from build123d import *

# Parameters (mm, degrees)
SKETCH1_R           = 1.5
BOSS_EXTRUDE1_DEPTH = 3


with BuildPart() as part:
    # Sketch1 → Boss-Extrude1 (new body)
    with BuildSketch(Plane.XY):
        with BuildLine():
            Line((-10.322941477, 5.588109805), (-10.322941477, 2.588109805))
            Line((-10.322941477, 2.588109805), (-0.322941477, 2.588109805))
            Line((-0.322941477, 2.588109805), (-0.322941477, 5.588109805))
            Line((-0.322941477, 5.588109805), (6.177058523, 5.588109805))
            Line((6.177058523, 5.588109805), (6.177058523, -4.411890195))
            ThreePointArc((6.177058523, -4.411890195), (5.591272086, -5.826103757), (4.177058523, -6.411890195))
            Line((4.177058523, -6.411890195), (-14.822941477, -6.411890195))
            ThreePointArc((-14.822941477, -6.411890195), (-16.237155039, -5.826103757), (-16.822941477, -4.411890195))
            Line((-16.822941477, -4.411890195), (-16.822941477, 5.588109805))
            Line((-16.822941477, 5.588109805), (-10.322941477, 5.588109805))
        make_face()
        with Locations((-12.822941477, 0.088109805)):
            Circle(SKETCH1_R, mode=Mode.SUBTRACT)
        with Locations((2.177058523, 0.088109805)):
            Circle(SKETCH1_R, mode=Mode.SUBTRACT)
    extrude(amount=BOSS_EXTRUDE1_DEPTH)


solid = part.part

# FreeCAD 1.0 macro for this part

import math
import FreeCAD as App
import Part
import Sketcher

V = App.Vector
Q = App.Units.Quantity

doc = App.newDocument("Part")
params = doc.addObject("Spreadsheet::Sheet", "Params")
for row, (alias, value) in enumerate([
    ("sketch1_diameter", "3 mm"),
    ("sketch1_radius", "2 mm"),
    ("sketch1_width", "19 mm"),
    ("sketch1_width2", "10 mm"),
    ("sketch1_height", "3 mm"),
    ("pad1_length", "3 mm"),
], start=1):
    params.set(f"A{row}", alias)
    params.set(f"B{row}", "=" + value)
    params.setAlias(f"B{row}", alias)

body = doc.addObject("PartDesign::Body", "Body")

# Sketch on XY plane
sketch1 = body.newObject("Sketcher::SketchObject", "Sketch")
sketch1.AttachmentSupport = (doc.getObject("XY_Plane"), [""])
sketch1.MapMode = "FlatFace"
sketch1.addGeometry([
    Part.LineSegment(V(-10.322941, 2.58811, 0), V(-10.322941, 5.58811, 0)),  # 0
    Part.LineSegment(V(-10.322941, 5.58811, 0), V(-16.822941, 5.58811, 0)),  # 1
    Part.LineSegment(V(-16.822941, 5.58811, 0), V(-16.822941, -4.41189, 0)),  # 2
    Part.ArcOfCircle(Part.Circle(V(-14.822941, -4.41189, 0), V(0, 0, 1), 2), math.radians(-180), math.radians(-90)),  # 3
    Part.LineSegment(V(-14.822941, -6.41189, 0), V(4.177059, -6.41189, 0)),  # 4
    Part.ArcOfCircle(Part.Circle(V(4.177059, -4.41189, 0), V(0, 0, 1), 2), math.radians(-90), math.radians(0)),  # 5
    Part.LineSegment(V(6.177059, -4.41189, 0), V(6.177059, 5.58811, 0)),  # 6
    Part.LineSegment(V(6.177059, 5.58811, 0), V(-0.322941, 5.58811, 0)),  # 7
    Part.LineSegment(V(-0.322941, 5.58811, 0), V(-0.322941, 2.58811, 0)),  # 8
    Part.LineSegment(V(-0.322941, 2.58811, 0), V(-10.322941, 2.58811, 0)),  # 9
    Part.Circle(V(2.177059, 0.08811, 0), V(0, 0, 1), 1.5),  # 10
    Part.Circle(V(-12.822941, 0.08811, 0), V(0, 0, 1), 1.5),  # 11
], False)
sketch1.addConstraint([
    Sketcher.Constraint("Coincident", 0, 2, 1, 1),
    Sketcher.Constraint("Coincident", 1, 2, 2, 1),
    Sketcher.Constraint("Tangent", 2, 2, 3, 1),
    Sketcher.Constraint("Tangent", 3, 2, 4, 1),
    Sketcher.Constraint("Tangent", 4, 2, 5, 1),
    Sketcher.Constraint("Tangent", 5, 2, 6, 1),
    Sketcher.Constraint("Coincident", 6, 2, 7, 1),
    Sketcher.Constraint("Coincident", 7, 2, 8, 1),
    Sketcher.Constraint("Coincident", 8, 2, 9, 1),
    Sketcher.Constraint("Coincident", 9, 2, 0, 1),
    Sketcher.Constraint("Vertical", 0),
    Sketcher.Constraint("Horizontal", 1),
    Sketcher.Constraint("Vertical", 2),
    Sketcher.Constraint("Horizontal", 4),
    Sketcher.Constraint("Vertical", 6),
    Sketcher.Constraint("Horizontal", 7),
    Sketcher.Constraint("Vertical", 8),
    Sketcher.Constraint("Horizontal", 9),
    Sketcher.Constraint("Equal", 3, 5),
    Sketcher.Constraint("Equal", 10, 11),
    Sketcher.Constraint("Horizontal", 10, 3, 11, 3),
    Sketcher.Constraint("Horizontal", 1, 2, 6, 2),
    Sketcher.Constraint("Equal", 1, 7),
    Sketcher.Constraint("Equal", 9, 2),
    Sketcher.Constraint("Diameter", 10, Q("3 mm")),
    Sketcher.Constraint("Radius", 3, Q("2 mm")),
    Sketcher.Constraint("DistanceX", 4, 1, 4, 2, Q("19 mm")),
    Sketcher.Constraint("DistanceX", 9, 2, 9, 1, Q("10 mm")),
    Sketcher.Constraint("DistanceY", 0, 1, 0, 2, Q("3 mm")),
    Sketcher.Constraint("DistanceX", 10, 3, 5, 3, Q("2 mm")),
    Sketcher.Constraint("DistanceX", 3, 3, 11, 3, Q("2 mm")),
    Sketcher.Constraint("DistanceY", 5, 3, 10, 3, Q("4.5 mm")),
    Sketcher.Constraint("DistanceX", 3, 3, -1, 1, Q("14.822941 mm")),
    Sketcher.Constraint("DistanceY", 3, 3, -1, 1, Q("4.41189 mm")),
])
sketch1.setExpression("Constraints[24]", "Params.sketch1_diameter")
sketch1.setExpression("Constraints[25]", "Params.sketch1_radius")
sketch1.setExpression("Constraints[26]", "Params.sketch1_width")
sketch1.setExpression("Constraints[27]", "Params.sketch1_width2")
sketch1.setExpression("Constraints[28]", "Params.sketch1_height")
pad1 = body.newObject("PartDesign::Pad", "Pad")
pad1.Profile = sketch1
pad1.setExpression("Length", "Params.pad1_length")

doc.recompute()
